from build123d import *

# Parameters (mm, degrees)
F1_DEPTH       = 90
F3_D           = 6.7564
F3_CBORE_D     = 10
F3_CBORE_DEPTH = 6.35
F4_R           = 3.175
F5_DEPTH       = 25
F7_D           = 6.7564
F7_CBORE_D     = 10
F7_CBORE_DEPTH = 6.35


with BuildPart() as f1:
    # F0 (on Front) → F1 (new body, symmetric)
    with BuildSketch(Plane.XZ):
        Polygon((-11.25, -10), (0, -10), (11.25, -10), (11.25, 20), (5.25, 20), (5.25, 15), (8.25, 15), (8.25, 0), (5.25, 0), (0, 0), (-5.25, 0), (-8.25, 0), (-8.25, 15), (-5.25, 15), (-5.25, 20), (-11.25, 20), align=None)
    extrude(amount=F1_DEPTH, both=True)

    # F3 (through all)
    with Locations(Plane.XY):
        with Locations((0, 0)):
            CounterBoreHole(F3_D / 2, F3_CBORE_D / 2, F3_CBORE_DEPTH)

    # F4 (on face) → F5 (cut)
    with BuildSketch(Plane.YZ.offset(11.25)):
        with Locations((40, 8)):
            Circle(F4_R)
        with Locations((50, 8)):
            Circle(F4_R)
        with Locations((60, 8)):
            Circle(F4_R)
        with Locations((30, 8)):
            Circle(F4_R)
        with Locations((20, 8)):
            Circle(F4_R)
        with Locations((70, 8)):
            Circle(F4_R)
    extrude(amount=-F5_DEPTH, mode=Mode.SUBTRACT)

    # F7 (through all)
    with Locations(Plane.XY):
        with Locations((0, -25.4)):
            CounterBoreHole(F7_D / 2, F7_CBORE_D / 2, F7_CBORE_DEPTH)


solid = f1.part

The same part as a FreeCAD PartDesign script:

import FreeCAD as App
import Part
import Sketcher

V = App.Vector

doc = App.newDocument("Part")
body = doc.addObject("PartDesign::Body", "Body")

# Sketch on XZ plane
sketch1 = body.newObject("Sketcher::SketchObject", "Sketch")
sketch1.AttachmentSupport = (doc.getObject("XZ_Plane"), [""])
sketch1.MapMode = "FlatFace"
sketch1.addGeometry(Part.LineSegment(V(-11.2, -10, 0), V(11.2, -10, 0)), False)
sketch1.addGeometry(Part.LineSegment(V(11.2, -10, 0), V(11.2, 20, 0)), False)
sketch1.addGeometry(Part.LineSegment(V(11.2, 20, 0), V(5.2, 20, 0)), False)
sketch1.addGeometry(Part.LineSegment(V(5.2, 20, 0), V(5.2, 15, 0)), False)
sketch1.addGeometry(Part.LineSegment(V(5.2, 15, 0), V(8.2, 15, 0)), False)
sketch1.addGeometry(Part.LineSegment(V(8.2, 15, 0), V(8.2, 0, 0)), False)
sketch1.addGeometry(Part.LineSegment(V(8.2, 0, 0), V(-8.2, 0, 0)), False)
sketch1.addGeometry(Part.LineSegment(V(-8.2, 0, 0), V(-8.2, 15, 0)), False)
sketch1.addGeometry(Part.LineSegment(V(-8.2, 15, 0), V(-5.2, 15, 0)), False)
sketch1.addGeometry(Part.LineSegment(V(-5.2, 15, 0), V(-5.2, 20, 0)), False)
sketch1.addGeometry(Part.LineSegment(V(-5.2, 20, 0), V(-11.2, 20, 0)), False)
sketch1.addGeometry(Part.LineSegment(V(-11.2, 20, 0), V(-11.2, -10, 0)), False)
sketch1.addConstraint(Sketcher.Constraint("Coincident", 0, 2, 1, 1))
sketch1.addConstraint(Sketcher.Constraint("Coincident", 1, 2, 2, 1))
sketch1.addConstraint(Sketcher.Constraint("Coincident", 2, 2, 3, 1))
sketch1.addConstraint(Sketcher.Constraint("Coincident", 3, 2, 4, 1))
sketch1.addConstraint(Sketcher.Constraint("Coincident", 4, 2, 5, 1))
sketch1.addConstraint(Sketcher.Constraint("Coincident", 5, 2, 6, 1))
sketch1.addConstraint(Sketcher.Constraint("Coincident", 6, 2, 7, 1))
sketch1.addConstraint(Sketcher.Constraint("Coincident", 7, 2, 8, 1))
sketch1.addConstraint(Sketcher.Constraint("Coincident", 8, 2, 9, 1))
sketch1.addConstraint(Sketcher.Constraint("Coincident", 9, 2, 10, 1))
sketch1.addConstraint(Sketcher.Constraint("Coincident", 10, 2, 11, 1))
sketch1.addConstraint(Sketcher.Constraint("Coincident", 11, 2, 0, 1))
sketch1.addConstraint(Sketcher.Constraint("Horizontal", 0))
sketch1.addConstraint(Sketcher.Constraint("Vertical", 1))
sketch1.addConstraint(Sketcher.Constraint("Horizontal", 2))
sketch1.addConstraint(Sketcher.Constraint("Vertical", 3))
sketch1.addConstraint(Sketcher.Constraint("Horizontal", 4))
sketch1.addConstraint(Sketcher.Constraint("Vertical", 5))
sketch1.addConstraint(Sketcher.Constraint("Horizontal", 6))
sketch1.addConstraint(Sketcher.Constraint("Vertical", 7))
sketch1.addConstraint(Sketcher.Constraint("Horizontal", 8))
sketch1.addConstraint(Sketcher.Constraint("Vertical", 9))
sketch1.addConstraint(Sketcher.Constraint("Horizontal", 10))
sketch1.addConstraint(Sketcher.Constraint("Vertical", 11))
sketch1.addConstraint(Sketcher.Constraint("Symmetric", 5, 2, 6, 2, -1, 1))
sketch1.addConstraint(Sketcher.Constraint("Symmetric", 3, 2, 8, 2, -2))
sketch1.addConstraint(Sketcher.Constraint("Symmetric", 1, 2, 10, 2, -2))
sketch1.addConstraint(Sketcher.Constraint("DistanceX", 2, 2, 2, 1, 6.0))
sketch1.addConstraint(Sketcher.Constraint("DistanceX", 4, 1, 4, 2, 3.0))
sketch1.addConstraint(Sketcher.Constraint("DistanceY", 1, 1, 1, 2, 30.0))
sketch1.addConstraint(Sketcher.Constraint("DistanceY", 3, 2, 3, 1, 5.0))
sketch1.addConstraint(Sketcher.Constraint("DistanceY", 5, 2, 5, 1, 15.0))
sketch1.addConstraint(Sketcher.Constraint("DistanceX", 0, 1, 0, 2, 22.5))
pad1 = body.newObject("PartDesign::Pad", "Pad")
pad1.Profile = sketch1
pad1.Length = 180
pad1.Midplane = True

# Sketch on XY plane
sketch2 = body.newObject("Sketcher::SketchObject", "Sketch001")
sketch2.AttachmentSupport = (doc.getObject("XY_Plane"), [""])
sketch2.MapMode = "FlatFace"
sketch2.addGeometry(Part.Circle(V(0, 0, 0), V(0, 0, 1), 3.4), False)
sketch2.addConstraint(Sketcher.Constraint("Coincident", 0, 3, -1, 1))
sketch2.addConstraint(Sketcher.Constraint("Diameter", 0, 6.7564))
doc.recompute()
hole = body.newObject("PartDesign::Hole", "Hole")
hole.Profile = sketch2
hole.ThreadType = "None"
hole.Diameter = 6.7564
hole.DepthType = "ThroughAll"
hole.HoleCutType = "Counterbore"
hole.HoleCutDiameter = 10
hole.HoleCutDepth = 6.35

# Sketch on YZ plane
sketch3 = body.newObject("Sketcher::SketchObject", "Sketch002")
sketch3.AttachmentSupport = (doc.getObject("YZ_Plane"), [""])
sketch3.MapMode = "FlatFace"
sketch3.AttachmentOffset = App.Placement(V(0, 0, 11.25), App.Rotation())
sketch3.addGeometry(Part.Circle(V(40, 8, 0), V(0, 0, 1), 3.2), False)
sketch3.addGeometry(Part.Circle(V(50, 8, 0), V(0, 0, 1), 3.2), False)
sketch3.addGeometry(Part.Circle(V(60, 8, 0), V(0, 0, 1), 3.2), False)
sketch3.addGeometry(Part.Circle(V(30, 8, 0), V(0, 0, 1), 3.2), False)
sketch3.addGeometry(Part.Circle(V(20, 8, 0), V(0, 0, 1), 3.2), False)
sketch3.addGeometry(Part.Circle(V(70, 8, 0), V(0, 0, 1), 3.2), False)
sketch3.addConstraint(Sketcher.Constraint("Equal", 0, 1))
sketch3.addConstraint(Sketcher.Constraint("Equal", 1, 2))
sketch3.addConstraint(Sketcher.Constraint("Equal", 2, 3))
sketch3.addConstraint(Sketcher.Constraint("Equal", 3, 4))
sketch3.addConstraint(Sketcher.Constraint("Equal", 4, 5))
sketch3.addConstraint(Sketcher.Constraint("Horizontal", 0, 3, 1, 3))
sketch3.addConstraint(Sketcher.Constraint("Horizontal", 1, 3, 2, 3))
sketch3.addConstraint(Sketcher.Constraint("Horizontal", 2, 3, 3, 3))
sketch3.addConstraint(Sketcher.Constraint("Horizontal", 3, 3, 4, 3))
sketch3.addConstraint(Sketcher.Constraint("Horizontal", 4, 3, 5, 3))
sketch3.addConstraint(Sketcher.Constraint("Diameter", 0, 6.35))
sketch3.addConstraint(Sketcher.Constraint("DistanceX", -1, 1, 0, 3, 40.0))
sketch3.addConstraint(Sketcher.Constraint("DistanceY", -1, 1, 0, 3, 8.0))
sketch3.addConstraint(Sketcher.Constraint("DistanceX", -1, 1, 1, 3, 50.0))
sketch3.addConstraint(Sketcher.Constraint("DistanceX", -1, 1, 2, 3, 60.0))
sketch3.addConstraint(Sketcher.Constraint("DistanceX", -1, 1, 3, 3, 30.0))
sketch3.addConstraint(Sketcher.Constraint("DistanceX", -1, 1, 4, 3, 20.0))
sketch3.addConstraint(Sketcher.Constraint("DistanceX", -1, 1, 5, 3, 70.0))
pocket1 = body.newObject("PartDesign::Pocket", "Pocket")
pocket1.Profile = sketch3
pocket1.Length = 25

# Sketch on XY plane
sketch4 = body.newObject("Sketcher::SketchObject", "Sketch003")
sketch4.AttachmentSupport = (doc.getObject("XY_Plane"), [""])
sketch4.MapMode = "FlatFace"
sketch4.addGeometry(Part.Circle(V(0, -25.4, 0), V(0, 0, 1), 3.4), False)
sketch4.addConstraint(Sketcher.Constraint("PointOnObject", 0, 3, -2))
sketch4.addConstraint(Sketcher.Constraint("Diameter", 0, 6.7564))
sketch4.addConstraint(Sketcher.Constraint("DistanceY", 0, 3, -1, 1, 25.4))
doc.recompute()
hole2 = body.newObject("PartDesign::Hole", "Hole001")
hole2.Profile = sketch4
hole2.ThreadType = "None"
hole2.Diameter = 6.7564
hole2.DepthType = "ThroughAll"
hole2.HoleCutType = "Counterbore"
hole2.HoleCutDiameter = 10
hole2.HoleCutDepth = 6.35

doc.recompute()
